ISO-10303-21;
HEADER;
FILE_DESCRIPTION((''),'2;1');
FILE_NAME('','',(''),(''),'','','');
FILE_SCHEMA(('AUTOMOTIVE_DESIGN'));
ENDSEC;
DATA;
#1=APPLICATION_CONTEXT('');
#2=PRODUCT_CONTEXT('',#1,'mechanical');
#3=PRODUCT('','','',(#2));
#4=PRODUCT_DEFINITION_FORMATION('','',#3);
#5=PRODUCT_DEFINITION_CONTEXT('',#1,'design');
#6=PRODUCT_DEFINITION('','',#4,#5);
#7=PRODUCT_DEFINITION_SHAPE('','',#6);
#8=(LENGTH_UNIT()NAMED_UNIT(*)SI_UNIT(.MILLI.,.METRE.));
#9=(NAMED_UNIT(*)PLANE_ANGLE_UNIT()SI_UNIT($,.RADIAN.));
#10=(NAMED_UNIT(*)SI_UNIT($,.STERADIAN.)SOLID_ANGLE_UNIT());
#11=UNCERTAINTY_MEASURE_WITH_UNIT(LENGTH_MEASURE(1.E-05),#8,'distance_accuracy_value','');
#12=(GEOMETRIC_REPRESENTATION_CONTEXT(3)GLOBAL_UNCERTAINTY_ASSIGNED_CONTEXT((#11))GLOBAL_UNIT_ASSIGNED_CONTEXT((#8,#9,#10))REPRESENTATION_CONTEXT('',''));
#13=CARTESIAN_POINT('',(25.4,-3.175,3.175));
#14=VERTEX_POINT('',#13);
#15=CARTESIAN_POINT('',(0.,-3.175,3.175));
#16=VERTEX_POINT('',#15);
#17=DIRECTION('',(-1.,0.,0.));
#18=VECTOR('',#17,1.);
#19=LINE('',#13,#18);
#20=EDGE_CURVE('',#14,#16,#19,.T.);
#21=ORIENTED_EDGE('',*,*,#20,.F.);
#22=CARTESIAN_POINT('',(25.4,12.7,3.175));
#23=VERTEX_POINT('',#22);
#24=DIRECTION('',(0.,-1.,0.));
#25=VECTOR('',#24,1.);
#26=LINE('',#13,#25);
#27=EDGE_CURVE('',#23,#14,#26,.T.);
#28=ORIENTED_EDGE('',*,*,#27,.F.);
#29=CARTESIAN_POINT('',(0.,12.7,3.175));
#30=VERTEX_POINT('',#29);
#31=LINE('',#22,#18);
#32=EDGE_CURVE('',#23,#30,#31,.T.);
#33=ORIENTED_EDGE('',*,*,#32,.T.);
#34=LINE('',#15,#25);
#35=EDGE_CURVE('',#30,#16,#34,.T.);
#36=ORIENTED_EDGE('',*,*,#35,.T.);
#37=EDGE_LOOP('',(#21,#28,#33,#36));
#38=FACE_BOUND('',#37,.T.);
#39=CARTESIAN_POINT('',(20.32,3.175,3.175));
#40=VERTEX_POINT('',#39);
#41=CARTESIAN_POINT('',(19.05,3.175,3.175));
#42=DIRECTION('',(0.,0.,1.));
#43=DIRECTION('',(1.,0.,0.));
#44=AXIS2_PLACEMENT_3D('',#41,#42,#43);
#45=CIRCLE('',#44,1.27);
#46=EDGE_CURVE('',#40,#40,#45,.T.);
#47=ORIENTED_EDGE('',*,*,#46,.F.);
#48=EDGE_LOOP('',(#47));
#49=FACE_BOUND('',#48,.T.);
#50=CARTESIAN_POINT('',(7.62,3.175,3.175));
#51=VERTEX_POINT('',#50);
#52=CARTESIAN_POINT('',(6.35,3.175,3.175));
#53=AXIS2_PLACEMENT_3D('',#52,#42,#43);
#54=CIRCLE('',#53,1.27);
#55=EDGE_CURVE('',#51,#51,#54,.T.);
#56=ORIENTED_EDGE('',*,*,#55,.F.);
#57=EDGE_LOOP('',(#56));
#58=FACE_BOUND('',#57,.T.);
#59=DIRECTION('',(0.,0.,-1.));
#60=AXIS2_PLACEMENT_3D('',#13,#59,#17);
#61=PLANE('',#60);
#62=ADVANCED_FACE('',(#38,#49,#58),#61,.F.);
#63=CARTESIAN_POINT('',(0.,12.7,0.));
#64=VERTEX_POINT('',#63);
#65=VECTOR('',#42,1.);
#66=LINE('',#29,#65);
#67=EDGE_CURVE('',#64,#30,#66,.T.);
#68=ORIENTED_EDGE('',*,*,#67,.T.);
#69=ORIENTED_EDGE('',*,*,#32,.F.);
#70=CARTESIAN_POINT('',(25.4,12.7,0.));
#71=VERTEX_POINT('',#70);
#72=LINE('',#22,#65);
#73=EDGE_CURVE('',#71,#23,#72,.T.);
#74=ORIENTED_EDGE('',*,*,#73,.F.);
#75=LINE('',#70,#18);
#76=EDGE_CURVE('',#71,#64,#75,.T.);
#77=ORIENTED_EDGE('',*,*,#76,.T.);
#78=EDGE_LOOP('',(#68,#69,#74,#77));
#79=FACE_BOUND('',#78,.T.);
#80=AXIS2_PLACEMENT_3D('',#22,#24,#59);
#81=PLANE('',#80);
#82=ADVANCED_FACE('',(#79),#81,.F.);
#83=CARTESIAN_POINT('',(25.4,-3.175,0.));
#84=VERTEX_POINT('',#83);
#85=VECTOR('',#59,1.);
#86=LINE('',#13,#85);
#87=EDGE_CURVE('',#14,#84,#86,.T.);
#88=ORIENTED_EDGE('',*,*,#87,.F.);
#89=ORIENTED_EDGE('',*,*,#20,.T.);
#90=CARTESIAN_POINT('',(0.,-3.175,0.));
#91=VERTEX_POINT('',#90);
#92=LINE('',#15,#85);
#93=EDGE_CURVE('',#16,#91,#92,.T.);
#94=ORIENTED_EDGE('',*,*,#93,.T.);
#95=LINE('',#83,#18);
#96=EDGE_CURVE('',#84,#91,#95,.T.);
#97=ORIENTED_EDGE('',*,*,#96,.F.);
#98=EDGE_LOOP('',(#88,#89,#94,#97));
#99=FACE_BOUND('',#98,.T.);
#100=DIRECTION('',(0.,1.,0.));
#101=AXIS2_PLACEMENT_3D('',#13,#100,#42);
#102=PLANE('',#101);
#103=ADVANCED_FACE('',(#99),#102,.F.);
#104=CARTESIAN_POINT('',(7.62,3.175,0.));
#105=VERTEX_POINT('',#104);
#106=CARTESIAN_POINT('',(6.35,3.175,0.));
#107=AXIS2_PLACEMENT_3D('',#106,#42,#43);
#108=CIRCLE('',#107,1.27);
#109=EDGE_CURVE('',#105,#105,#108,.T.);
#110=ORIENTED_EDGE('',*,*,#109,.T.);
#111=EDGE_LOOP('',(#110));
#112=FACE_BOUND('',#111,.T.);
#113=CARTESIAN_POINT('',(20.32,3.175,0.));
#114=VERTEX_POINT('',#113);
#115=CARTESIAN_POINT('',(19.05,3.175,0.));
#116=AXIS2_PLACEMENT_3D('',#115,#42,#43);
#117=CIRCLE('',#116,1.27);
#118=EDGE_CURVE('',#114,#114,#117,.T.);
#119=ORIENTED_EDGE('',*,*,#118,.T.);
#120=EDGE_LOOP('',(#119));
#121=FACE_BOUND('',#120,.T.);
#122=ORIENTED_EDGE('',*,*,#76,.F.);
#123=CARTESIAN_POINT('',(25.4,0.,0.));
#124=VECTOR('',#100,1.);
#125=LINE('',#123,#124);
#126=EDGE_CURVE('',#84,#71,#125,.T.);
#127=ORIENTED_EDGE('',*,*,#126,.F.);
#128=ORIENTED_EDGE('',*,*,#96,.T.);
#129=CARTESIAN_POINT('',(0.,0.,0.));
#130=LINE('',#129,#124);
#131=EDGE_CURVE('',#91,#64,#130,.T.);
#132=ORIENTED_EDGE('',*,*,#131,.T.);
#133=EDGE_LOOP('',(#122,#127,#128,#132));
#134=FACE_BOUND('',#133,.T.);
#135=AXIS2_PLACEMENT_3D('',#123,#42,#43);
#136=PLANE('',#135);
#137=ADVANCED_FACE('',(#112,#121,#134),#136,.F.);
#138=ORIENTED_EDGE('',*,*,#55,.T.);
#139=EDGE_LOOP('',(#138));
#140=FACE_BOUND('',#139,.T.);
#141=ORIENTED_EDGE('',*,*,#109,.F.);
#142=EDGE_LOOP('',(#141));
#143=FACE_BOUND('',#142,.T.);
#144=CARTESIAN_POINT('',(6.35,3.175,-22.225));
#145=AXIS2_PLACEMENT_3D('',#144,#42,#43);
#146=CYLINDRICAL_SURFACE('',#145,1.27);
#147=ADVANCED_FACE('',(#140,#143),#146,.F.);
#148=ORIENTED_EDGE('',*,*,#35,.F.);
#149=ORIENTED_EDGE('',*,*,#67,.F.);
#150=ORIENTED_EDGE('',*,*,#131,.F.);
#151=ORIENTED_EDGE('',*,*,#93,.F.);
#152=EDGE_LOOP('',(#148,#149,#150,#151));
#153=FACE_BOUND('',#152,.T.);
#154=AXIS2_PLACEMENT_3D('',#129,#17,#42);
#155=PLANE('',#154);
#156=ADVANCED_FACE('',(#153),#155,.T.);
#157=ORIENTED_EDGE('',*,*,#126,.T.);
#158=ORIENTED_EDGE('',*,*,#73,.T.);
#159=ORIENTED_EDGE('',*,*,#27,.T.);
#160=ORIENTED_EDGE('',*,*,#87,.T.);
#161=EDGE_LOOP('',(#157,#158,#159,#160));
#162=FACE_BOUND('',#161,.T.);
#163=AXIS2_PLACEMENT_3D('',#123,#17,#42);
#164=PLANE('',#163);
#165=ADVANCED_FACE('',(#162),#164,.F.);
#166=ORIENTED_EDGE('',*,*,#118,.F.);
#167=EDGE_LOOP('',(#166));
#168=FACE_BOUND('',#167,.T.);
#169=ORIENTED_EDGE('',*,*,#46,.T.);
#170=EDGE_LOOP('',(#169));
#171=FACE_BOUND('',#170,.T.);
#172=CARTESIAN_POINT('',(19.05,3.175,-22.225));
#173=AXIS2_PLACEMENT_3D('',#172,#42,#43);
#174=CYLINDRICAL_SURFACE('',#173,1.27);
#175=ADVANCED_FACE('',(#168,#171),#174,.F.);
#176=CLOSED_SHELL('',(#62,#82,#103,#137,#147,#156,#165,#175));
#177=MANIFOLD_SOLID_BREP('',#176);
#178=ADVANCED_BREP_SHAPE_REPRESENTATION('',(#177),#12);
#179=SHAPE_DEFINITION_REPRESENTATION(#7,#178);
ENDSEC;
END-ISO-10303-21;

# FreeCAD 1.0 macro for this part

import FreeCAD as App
import Part
import Sketcher

V = App.Vector
Q = App.Units.Quantity

doc = App.newDocument("Part")
params = doc.addObject("Spreadsheet::Sheet", "Params")
for row, (alias, value) in enumerate([
    ("sketch1_width", "0.5 in"),
    ("sketch1_height", "0.42 in"),
    ("sketch1_width2", "0.625 in"),
    ("pad1_length", "1 in"),
    ("sketch2_diameter", "0.1 in"),
    ("pocket1_length", "1 in"),
    ("sketch3_width", "1 in"),
    ("sketch3_height", "0.125 in"),
    ("pocket2_length", "0.42 in"),
], start=1):
    params.set(f"A{row}", alias)
    params.set(f"B{row}", "=" + value)
    params.setAlias(f"B{row}", alias)

body = doc.addObject("PartDesign::Body", "Body")

sketch1 = body.newObject("Sketcher::SketchObject", "Sketch")
sketch1.AttachmentSupport = (doc.getObject("YZ_Plane"), [""])
sketch1.MapMode = "FlatFace"
sketch1.addGeometry([
    Part.LineSegment(V(0, 0, 0), V(12.7, 0, 0)),
    Part.LineSegment(V(12.7, 0, 0), V(12.7, 3.2, 0)),
    Part.LineSegment(V(12.7, 3.2, 0), V(-3.2, 3.2, 0)),
    Part.LineSegment(V(-3.2, 3.2, 0), V(-3.2, -10.7, 0)),
    Part.LineSegment(V(-3.2, -10.7, 0), V(0, -10.7, 0)),
    Part.LineSegment(V(0, -10.7, 0), V(0, 0, 0)),
], False)
sketch1.addConstraint([
    Sketcher.Constraint("Coincident", 0, 2, 1, 1),
    Sketcher.Constraint("Coincident", 1, 2, 2, 1),
    Sketcher.Constraint("Coincident", 2, 2, 3, 1),
    Sketcher.Constraint("Coincident", 3, 2, 4, 1),
    Sketcher.Constraint("Coincident", 4, 2, 5, 1),
    Sketcher.Constraint("Coincident", 5, 2, 0, 1),
    Sketcher.Constraint("Horizontal", 0),
    Sketcher.Constraint("Vertical", 1),
    Sketcher.Constraint("Horizontal", 2),
    Sketcher.Constraint("Vertical", 3),
    Sketcher.Constraint("Horizontal", 4),
    Sketcher.Constraint("Vertical", 5),
    Sketcher.Constraint("Coincident", 5, 2, -1, 1),
    Sketcher.Constraint("Equal", 4, 1),
    Sketcher.Constraint("DistanceX", 0, 1, 0, 2, Q("0.5 in")),
    Sketcher.Constraint("DistanceY", 5, 1, 5, 2, Q("0.42 in")),
    Sketcher.Constraint("DistanceX", 2, 2, 2, 1, Q("0.625 in")),
])
sketch1.setExpression("Constraints[14]", "Params.sketch1_width")
sketch1.setExpression("Constraints[15]", "Params.sketch1_height")
sketch1.setExpression("Constraints[16]", "Params.sketch1_width2")
pad1 = body.newObject("PartDesign::Pad", "Pad")
pad1.Profile = sketch1
pad1.setExpression("Length", "Params.pad1_length")

sketch2 = body.newObject("Sketcher::SketchObject", "Sketch001")
sketch2.AttachmentSupport = (doc.getObject("XY_Plane"), [""])
sketch2.MapMode = "FlatFace"
sketch2.AttachmentOffset = App.Placement(V(0, 0, 0.125 * 25.4), App.Rotation())
sketch2.addGeometry([
    Part.Circle(V(6.3, 3.2, 0), V(0, 0, 1), 1.3),
    Part.Circle(V(19.1, 3.2, 0), V(0, 0, 1), 1.3),
], False)
sketch2.addConstraint([
    Sketcher.Constraint("Equal", 0, 1),
    Sketcher.Constraint("Horizontal", 0, 3, 1, 3),
    Sketcher.Constraint("Diameter", 0, Q("0.1 in")),
    Sketcher.Constraint("DistanceX", 0, 3, 1, 3, Q("0.5 in")),
    Sketcher.Constraint("DistanceX", -1, 1, 0, 3, Q("0.25 in")),
    Sketcher.Constraint("DistanceY", -1, 1, 0, 3, Q("0.125 in")),
])
sketch2.setExpression("Constraints[2]", "Params.sketch2_diameter")
pocket1 = body.newObject("PartDesign::Pocket", "Pocket")
pocket1.Profile = sketch2
pocket1.setExpression("Length", "Params.pocket1_length")

sketch3 = body.newObject("Sketcher::SketchObject", "Sketch002")
sketch3.AttachmentSupport = (doc.getObject("XY_Plane"), [""])
sketch3.MapMode = "FlatFace"
sketch3.AttachmentOffset = App.Placement(V(0, 0, -0.42 * 25.4), App.Rotation())
sketch3.addGeometry([
    Part.LineSegment(V(25.4, 0, 0), V(25.4, -3.2, 0)),
    Part.LineSegment(V(25.4, -3.2, 0), V(0, -3.2, 0)),
    Part.LineSegment(V(0, -3.2, 0), V(0, 0, 0)),
    Part.LineSegment(V(0, 0, 0), V(25.4, 0, 0)),
], False)
sketch3.addConstraint([
    Sketcher.Constraint("Coincident", 0, 2, 1, 1),
    Sketcher.Constraint("Coincident", 1, 2, 2, 1),
    Sketcher.Constraint("Coincident", 2, 2, 3, 1),
    Sketcher.Constraint("Coincident", 3, 2, 0, 1),
    Sketcher.Constraint("Vertical", 0),
    Sketcher.Constraint("Horizontal", 1),
    Sketcher.Constraint("Vertical", 2),
    Sketcher.Constraint("Horizontal", 3),
    Sketcher.Constraint("Coincident", 2, 2, -1, 1),
    Sketcher.Constraint("DistanceX", 1, 2, 1, 1, Q("1 in")),
    Sketcher.Constraint("DistanceY", 0, 2, 0, 1, Q("0.125 in")),
])
sketch3.setExpression("Constraints[9]", "Params.sketch3_width")
sketch3.setExpression("Constraints[10]", "Params.sketch3_height")
pocket2 = body.newObject("PartDesign::Pocket", "Pocket001")
pocket2.Profile = sketch3
pocket2.setExpression("Length", "Params.pocket2_length")
pocket2.Reversed = True

doc.recompute()
